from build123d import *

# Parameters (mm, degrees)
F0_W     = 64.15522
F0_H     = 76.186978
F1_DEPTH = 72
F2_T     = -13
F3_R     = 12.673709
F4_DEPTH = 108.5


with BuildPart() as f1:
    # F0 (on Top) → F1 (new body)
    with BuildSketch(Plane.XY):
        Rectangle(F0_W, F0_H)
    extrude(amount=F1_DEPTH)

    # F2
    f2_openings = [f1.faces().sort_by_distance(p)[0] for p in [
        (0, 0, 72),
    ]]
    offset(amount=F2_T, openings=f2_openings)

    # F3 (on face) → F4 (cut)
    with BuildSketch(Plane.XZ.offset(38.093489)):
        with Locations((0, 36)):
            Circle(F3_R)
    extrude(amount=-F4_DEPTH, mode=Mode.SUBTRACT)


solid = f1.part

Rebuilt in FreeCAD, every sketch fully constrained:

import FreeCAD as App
import Part
import Sketcher
from FreeCAD import Vector


def faces_at(feature, points):
    """Names of the faces that lie closest to the given points."""
    faces = feature.Shape.Faces
    near = lambda p: min(range(len(faces)), key=lambda i: faces[i].distToShape(Part.Vertex(*p))[0])
    return sorted({f"Face{near(p) + 1}" for p in points})


def add_polygon(sketch, points):
    """Adds a closed chain of lines whose ends are joined by coincident constraints."""
    first, n = sketch.GeometryCount, len(points)
    for a, b in zip(points, points[1:] + points[:1]):
        sketch.addGeometry(Part.LineSegment(App.Vector(*a, 0), App.Vector(*b, 0)), False)
    for i in range(n):
        sketch.addConstraint(Sketcher.Constraint("Coincident", first + i, 2, first + (i + 1) % n, 1))

doc = App.newDocument("Part")
body = doc.addObject("PartDesign::Body", "Body")

# Sketch on XY plane
sketch1 = body.newObject("Sketcher::SketchObject", "Sketch")
sketch1.AttachmentSupport = (doc.getObject("XY_Plane"), [""])
sketch1.MapMode = "FlatFace"
add_polygon(sketch1, [(-32.07761, 38.093489), (-32.07761, -38.093489), (32.07761, -38.093489), (32.07761, 38.093489)])  # lines 0-3
sketch1.addConstraint(Sketcher.Constraint("Vertical", 0))
sketch1.addConstraint(Sketcher.Constraint("Horizontal", 1))
sketch1.addConstraint(Sketcher.Constraint("Vertical", 2))
sketch1.addConstraint(Sketcher.Constraint("Horizontal", 3))
sketch1.addConstraint(Sketcher.Constraint("Symmetric", 0, 2, 2, 2, -1, 1))
sketch1.addConstraint(Sketcher.Constraint("DistanceX", 1, 1, 1, 2, 64.15522))
sketch1.addConstraint(Sketcher.Constraint("DistanceY", 0, 2, 0, 1, 76.186978))
pad1 = body.newObject("PartDesign::Pad", "Pad")
pad1.Profile = sketch1
pad1.Length = 72
doc.recompute()

thickness = body.newObject("PartDesign::Thickness", "Thickness")
thickness.Base = (pad1, faces_at(pad1, [(0, 0, 72)]))
thickness.Value = 13
thickness.Reversed = True
thickness.Join = "Arc"

# Sketch on XZ plane
sketch2 = body.newObject("Sketcher::SketchObject", "Sketch001")
sketch2.AttachmentSupport = (doc.getObject("XZ_Plane"), [""])
sketch2.MapMode = "FlatFace"
sketch2.AttachmentOffset = App.Placement(Vector(0, 0, 38.093489), App.Rotation())
sketch2.addGeometry(Part.Circle(Vector(0, 36, 0), Vector(0, 0, 1), 12.673709), False)
sketch2.addConstraint(Sketcher.Constraint("PointOnObject", 0, 3, -2))
sketch2.addConstraint(Sketcher.Constraint("DistanceY", -1, 1, 0, 3, 36.0))
sketch2.addConstraint(Sketcher.Constraint("Diameter", 0, 25.347418))
pocket1 = body.newObject("PartDesign::Pocket", "Pocket")
pocket1.Profile = sketch2
pocket1.Length = 108.5

doc.recompute()
